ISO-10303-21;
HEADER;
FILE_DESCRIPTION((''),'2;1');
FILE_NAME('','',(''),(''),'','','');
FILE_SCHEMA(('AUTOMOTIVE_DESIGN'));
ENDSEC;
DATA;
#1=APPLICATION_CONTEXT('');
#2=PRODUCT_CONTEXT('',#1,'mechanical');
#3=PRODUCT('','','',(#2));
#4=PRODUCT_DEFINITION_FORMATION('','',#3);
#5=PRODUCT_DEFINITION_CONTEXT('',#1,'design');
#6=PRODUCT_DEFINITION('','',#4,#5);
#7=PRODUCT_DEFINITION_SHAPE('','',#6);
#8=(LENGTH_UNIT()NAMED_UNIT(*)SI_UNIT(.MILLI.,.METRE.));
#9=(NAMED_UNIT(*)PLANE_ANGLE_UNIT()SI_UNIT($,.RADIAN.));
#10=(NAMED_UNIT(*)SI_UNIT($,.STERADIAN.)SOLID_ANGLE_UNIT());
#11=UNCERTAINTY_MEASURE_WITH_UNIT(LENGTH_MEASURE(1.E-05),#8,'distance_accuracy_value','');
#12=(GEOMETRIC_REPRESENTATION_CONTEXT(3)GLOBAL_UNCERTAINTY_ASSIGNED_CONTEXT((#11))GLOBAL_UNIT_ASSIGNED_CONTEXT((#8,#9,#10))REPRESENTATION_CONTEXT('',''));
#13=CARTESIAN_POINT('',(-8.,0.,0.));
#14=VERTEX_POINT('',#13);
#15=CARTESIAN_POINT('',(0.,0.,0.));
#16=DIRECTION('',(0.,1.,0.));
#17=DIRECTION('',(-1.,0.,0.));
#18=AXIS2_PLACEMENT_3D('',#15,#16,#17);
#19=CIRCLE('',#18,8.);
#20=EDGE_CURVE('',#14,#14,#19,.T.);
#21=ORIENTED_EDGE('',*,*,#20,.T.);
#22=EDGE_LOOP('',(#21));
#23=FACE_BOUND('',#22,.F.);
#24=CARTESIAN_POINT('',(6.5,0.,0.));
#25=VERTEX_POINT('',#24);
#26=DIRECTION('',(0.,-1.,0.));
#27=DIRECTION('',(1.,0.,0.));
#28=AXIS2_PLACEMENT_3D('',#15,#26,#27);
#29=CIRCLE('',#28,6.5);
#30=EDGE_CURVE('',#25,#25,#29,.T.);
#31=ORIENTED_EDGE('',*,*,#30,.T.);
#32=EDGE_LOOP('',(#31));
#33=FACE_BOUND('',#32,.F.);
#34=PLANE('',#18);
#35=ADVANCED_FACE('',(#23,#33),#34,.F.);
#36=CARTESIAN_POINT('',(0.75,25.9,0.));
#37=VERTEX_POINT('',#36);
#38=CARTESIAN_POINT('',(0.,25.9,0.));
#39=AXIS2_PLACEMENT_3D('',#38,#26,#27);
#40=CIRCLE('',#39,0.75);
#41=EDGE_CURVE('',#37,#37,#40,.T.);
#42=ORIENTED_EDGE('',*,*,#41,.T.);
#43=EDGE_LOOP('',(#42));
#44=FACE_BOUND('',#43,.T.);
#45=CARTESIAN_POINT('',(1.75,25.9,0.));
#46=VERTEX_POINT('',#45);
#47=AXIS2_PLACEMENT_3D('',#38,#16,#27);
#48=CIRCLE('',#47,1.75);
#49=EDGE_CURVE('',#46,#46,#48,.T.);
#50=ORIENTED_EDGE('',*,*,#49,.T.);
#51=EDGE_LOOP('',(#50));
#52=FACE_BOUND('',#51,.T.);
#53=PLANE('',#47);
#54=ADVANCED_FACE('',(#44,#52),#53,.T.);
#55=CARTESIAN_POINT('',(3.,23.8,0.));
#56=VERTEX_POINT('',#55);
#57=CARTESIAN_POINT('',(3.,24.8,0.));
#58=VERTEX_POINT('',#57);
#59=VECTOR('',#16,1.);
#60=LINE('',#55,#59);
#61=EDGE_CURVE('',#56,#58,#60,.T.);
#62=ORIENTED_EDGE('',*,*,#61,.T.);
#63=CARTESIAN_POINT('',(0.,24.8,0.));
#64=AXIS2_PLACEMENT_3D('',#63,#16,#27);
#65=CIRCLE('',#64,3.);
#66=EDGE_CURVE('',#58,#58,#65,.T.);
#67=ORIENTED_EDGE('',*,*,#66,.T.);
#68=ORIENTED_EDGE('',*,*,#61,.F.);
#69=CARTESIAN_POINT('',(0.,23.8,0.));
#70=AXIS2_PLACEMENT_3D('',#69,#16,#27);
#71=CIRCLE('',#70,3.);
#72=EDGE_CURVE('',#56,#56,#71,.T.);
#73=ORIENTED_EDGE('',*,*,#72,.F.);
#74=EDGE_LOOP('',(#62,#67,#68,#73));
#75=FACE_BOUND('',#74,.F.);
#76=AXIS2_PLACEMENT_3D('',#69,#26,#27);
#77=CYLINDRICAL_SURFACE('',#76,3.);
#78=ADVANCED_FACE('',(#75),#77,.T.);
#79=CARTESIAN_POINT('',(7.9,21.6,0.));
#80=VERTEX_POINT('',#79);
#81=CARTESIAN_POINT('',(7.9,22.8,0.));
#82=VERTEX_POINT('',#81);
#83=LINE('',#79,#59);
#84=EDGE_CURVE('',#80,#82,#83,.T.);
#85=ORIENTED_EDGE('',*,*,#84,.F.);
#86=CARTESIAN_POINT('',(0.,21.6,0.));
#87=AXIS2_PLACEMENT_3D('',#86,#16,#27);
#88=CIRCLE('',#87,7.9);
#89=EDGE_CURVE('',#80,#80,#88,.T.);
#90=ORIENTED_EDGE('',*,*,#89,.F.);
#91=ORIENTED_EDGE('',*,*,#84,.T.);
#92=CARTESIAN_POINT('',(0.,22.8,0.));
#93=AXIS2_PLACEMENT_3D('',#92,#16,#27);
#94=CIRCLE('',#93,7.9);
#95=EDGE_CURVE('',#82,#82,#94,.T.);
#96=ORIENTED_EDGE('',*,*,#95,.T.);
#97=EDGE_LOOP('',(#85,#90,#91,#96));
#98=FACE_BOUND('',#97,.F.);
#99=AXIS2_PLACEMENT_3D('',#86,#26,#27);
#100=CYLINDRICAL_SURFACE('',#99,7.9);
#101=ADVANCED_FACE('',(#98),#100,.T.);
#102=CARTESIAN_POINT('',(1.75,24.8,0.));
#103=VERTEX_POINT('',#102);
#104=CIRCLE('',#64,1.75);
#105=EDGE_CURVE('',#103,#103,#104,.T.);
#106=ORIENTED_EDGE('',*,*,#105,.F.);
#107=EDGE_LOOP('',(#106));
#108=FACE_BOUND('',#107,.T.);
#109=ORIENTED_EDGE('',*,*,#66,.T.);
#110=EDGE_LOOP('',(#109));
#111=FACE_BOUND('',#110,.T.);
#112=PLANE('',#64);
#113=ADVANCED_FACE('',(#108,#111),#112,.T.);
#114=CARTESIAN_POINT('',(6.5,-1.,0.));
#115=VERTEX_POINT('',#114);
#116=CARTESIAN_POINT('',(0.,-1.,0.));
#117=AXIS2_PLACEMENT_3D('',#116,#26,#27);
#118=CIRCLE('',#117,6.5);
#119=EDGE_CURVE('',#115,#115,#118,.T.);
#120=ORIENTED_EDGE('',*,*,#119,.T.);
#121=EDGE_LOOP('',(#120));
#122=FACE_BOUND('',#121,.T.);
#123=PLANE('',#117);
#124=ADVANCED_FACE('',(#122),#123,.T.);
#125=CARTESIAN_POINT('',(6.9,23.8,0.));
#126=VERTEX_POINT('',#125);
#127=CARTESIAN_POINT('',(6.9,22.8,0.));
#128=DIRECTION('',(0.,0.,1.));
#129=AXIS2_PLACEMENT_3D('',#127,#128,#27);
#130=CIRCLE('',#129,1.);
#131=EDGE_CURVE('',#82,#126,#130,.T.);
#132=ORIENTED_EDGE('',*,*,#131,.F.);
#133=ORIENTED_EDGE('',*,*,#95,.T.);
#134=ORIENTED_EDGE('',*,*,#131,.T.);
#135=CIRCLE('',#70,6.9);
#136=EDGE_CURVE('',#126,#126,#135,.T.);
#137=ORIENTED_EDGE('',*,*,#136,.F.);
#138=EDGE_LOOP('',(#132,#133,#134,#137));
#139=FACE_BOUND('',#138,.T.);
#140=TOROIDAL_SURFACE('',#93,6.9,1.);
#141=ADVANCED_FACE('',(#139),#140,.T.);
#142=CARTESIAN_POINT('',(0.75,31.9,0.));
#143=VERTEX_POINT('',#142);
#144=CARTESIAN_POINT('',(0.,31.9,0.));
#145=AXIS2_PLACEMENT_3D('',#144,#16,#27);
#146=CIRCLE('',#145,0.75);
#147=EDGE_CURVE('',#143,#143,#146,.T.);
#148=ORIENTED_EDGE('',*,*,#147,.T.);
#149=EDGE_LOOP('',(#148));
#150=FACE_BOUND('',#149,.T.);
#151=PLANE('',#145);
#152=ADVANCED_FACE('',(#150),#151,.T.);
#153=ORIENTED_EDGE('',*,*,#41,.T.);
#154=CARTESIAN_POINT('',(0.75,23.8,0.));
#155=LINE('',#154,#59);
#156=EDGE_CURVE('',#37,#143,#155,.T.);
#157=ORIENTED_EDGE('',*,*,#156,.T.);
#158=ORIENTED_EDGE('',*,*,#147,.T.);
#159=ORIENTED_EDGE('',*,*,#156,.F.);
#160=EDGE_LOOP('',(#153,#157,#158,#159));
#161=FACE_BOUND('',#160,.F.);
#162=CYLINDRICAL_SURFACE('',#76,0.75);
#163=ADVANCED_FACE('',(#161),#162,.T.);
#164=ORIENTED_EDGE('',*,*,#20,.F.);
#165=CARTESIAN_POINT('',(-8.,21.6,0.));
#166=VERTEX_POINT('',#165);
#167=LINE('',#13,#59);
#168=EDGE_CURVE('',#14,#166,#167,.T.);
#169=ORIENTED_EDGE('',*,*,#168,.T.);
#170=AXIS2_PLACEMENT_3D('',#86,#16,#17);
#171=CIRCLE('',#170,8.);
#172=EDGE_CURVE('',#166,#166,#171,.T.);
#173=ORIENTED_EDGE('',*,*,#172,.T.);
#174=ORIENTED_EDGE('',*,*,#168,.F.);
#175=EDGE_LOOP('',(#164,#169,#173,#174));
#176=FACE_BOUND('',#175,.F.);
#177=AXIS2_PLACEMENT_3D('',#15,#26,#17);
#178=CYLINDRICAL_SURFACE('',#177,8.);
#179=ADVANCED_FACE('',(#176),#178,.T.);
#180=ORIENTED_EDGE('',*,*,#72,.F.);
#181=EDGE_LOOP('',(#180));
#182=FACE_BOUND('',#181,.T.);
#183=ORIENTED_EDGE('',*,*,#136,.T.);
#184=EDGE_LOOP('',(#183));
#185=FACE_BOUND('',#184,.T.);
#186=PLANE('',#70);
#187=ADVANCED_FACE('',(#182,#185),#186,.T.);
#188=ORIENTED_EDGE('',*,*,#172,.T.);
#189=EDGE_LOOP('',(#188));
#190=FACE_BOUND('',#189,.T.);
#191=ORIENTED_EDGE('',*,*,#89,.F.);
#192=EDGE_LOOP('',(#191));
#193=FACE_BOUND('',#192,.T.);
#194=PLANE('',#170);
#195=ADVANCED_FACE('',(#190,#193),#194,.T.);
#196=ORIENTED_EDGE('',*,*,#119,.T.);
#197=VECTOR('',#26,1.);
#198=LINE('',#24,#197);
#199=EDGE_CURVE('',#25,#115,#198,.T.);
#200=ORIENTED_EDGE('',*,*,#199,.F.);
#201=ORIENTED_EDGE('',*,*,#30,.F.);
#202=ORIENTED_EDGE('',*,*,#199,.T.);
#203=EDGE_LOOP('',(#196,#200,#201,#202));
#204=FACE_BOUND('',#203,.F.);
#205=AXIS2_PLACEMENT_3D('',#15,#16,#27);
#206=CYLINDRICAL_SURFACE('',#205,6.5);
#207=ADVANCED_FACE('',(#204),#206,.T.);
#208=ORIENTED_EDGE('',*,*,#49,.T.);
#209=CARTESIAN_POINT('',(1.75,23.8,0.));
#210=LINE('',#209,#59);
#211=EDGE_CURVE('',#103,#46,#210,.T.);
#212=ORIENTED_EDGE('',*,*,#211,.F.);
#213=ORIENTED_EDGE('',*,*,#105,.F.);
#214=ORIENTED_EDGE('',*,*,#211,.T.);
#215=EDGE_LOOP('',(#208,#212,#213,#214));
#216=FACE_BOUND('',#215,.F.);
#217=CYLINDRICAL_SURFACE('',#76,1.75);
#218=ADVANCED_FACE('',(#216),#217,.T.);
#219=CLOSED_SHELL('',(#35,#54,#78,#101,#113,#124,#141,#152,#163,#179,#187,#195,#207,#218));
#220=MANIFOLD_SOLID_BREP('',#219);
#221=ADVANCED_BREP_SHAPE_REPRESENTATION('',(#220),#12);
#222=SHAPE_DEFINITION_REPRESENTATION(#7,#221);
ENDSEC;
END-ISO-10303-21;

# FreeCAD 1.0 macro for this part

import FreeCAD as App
import Part
import Sketcher

V = App.Vector


def edges_at(feature, points):
    """Names of the edges that pass closest to the given points."""
    edges = feature.Shape.Edges
    near = lambda p: min(range(len(edges)), key=lambda i: edges[i].distToShape(Part.Vertex(*p))[0])
    return sorted({f"Edge{near(p) + 1}" for p in points})

doc = App.newDocument("Part")
body = doc.addObject("PartDesign::Body", "Body")

sketch1 = doc.addObject("Sketcher::SketchObject", "Sketch")
body.addObject(sketch1)
sketch1.AttachmentSupport = (doc.XZ_Plane, [""])
sketch1.MapMode = "FlatFace"
sketch1.addGeometry(Part.Circle(V(0, 0, 0), V(0, 0, 1), 8), False)
sketch1.addConstraint(Sketcher.Constraint("Coincident", 0, 3, -1, 1))
sketch1.addConstraint(Sketcher.Constraint("Diameter", 0, 16.0))
pad1 = doc.addObject("PartDesign::Pad", "Pad")
body.addObject(pad1)
pad1.Profile = sketch1
pad1.Length = 21.6
pad1.Reversed = True

sketch2 = doc.addObject("Sketcher::SketchObject", "Sketch001")
body.addObject(sketch2)
sketch2.AttachmentSupport = (doc.XZ_Plane, [""])
sketch2.MapMode = "FlatFace"
sketch2.AttachmentOffset = App.Placement(V(0, 0, -21.6), App.Rotation())
sketch2.addGeometry(Part.Circle(V(0, 0, 0), V(0, 0, 1), 8), False)
sketch2.addConstraint(Sketcher.Constraint("Coincident", 0, 3, -1, 1))
sketch2.addConstraint(Sketcher.Constraint("Diameter", 0, 15.8))
pad2 = doc.addObject("PartDesign::Pad", "Pad001")
body.addObject(pad2)
pad2.Profile = sketch2
pad2.Length = 2.2
pad2.Reversed = True
doc.recompute()

fillet = doc.addObject("PartDesign::Fillet", "Fillet")
body.addObject(fillet)
fillet.Base = (pad2, edges_at(pad2, [(-7.9, 23.8, 0)]))
fillet.Radius = 1

sketch3 = doc.addObject("Sketcher::SketchObject", "Sketch002")
body.addObject(sketch3)
sketch3.AttachmentSupport = (doc.XZ_Plane, [""])
sketch3.MapMode = "FlatFace"
sketch3.AttachmentOffset = App.Placement(V(0, 0, -23.8), App.Rotation())
sketch3.addGeometry(Part.Circle(V(0, 0, 0), V(0, 0, 1), 3), False)
sketch3.addGeometry(Part.Circle(V(0, 0, 0), V(0, 0, 1), 1.8), False)
sketch3.addConstraint(Sketcher.Constraint("Coincident", 0, 3, -1, 1))
sketch3.addConstraint(Sketcher.Constraint("Coincident", 1, 3, -1, 1))
sketch3.addConstraint(Sketcher.Constraint("Diameter", 0, 6.0))
sketch3.addConstraint(Sketcher.Constraint("Diameter", 1, 3.5))
pad3 = doc.addObject("PartDesign::Pad", "Pad002")
body.addObject(pad3)
pad3.Profile = sketch3
pad3.Length = 1
pad3.Reversed = True

sketch4 = doc.addObject("Sketcher::SketchObject", "Sketch003")
body.addObject(sketch4)
sketch4.AttachmentSupport = (doc.XZ_Plane, [""])
sketch4.MapMode = "FlatFace"
sketch4.AttachmentOffset = App.Placement(V(0, 0, -23.8), App.Rotation())
sketch4.addGeometry(Part.Circle(V(0, 0, 0), V(0, 0, 1), 1.8), False)
sketch4.addConstraint(Sketcher.Constraint("Coincident", 0, 3, -1, 1))
sketch4.addConstraint(Sketcher.Constraint("Diameter", 0, 3.5))
pad4 = doc.addObject("PartDesign::Pad", "Pad003")
body.addObject(pad4)
pad4.Profile = sketch4
pad4.Length = 2.1
pad4.Reversed = True

sketch5 = doc.addObject("Sketcher::SketchObject", "Sketch004")
body.addObject(sketch5)
sketch5.AttachmentSupport = (doc.XZ_Plane, [""])
sketch5.MapMode = "FlatFace"
sketch5.AttachmentOffset = App.Placement(V(0, 0, -23.8), App.Rotation())
sketch5.addGeometry(Part.Circle(V(0, 0, 0), V(0, 0, 1), 0.8), False)
sketch5.addConstraint(Sketcher.Constraint("Coincident", 0, 3, -1, 1))
sketch5.addConstraint(Sketcher.Constraint("Diameter", 0, 1.5))
pad5 = doc.addObject("PartDesign::Pad", "Pad004")
body.addObject(pad5)
pad5.Profile = sketch5
pad5.Length = 8.1
pad5.Reversed = True

sketch6 = doc.addObject("Sketcher::SketchObject", "Sketch005")
body.addObject(sketch6)
sketch6.AttachmentSupport = (doc.XZ_Plane, [""])
sketch6.MapMode = "FlatFace"
sketch6.addGeometry(Part.Circle(V(0, 0, 0), V(0, 0, 1), 6), False)
sketch6.addConstraint(Sketcher.Constraint("Coincident", 0, 3, -1, 1))
sketch6.addConstraint(Sketcher.Constraint("Diameter", 0, 13.0))
pad6 = doc.addObject("PartDesign::Pad", "Pad005")
body.addObject(pad6)
pad6.Profile = sketch6
pad6.Length = 1

doc.recompute()
